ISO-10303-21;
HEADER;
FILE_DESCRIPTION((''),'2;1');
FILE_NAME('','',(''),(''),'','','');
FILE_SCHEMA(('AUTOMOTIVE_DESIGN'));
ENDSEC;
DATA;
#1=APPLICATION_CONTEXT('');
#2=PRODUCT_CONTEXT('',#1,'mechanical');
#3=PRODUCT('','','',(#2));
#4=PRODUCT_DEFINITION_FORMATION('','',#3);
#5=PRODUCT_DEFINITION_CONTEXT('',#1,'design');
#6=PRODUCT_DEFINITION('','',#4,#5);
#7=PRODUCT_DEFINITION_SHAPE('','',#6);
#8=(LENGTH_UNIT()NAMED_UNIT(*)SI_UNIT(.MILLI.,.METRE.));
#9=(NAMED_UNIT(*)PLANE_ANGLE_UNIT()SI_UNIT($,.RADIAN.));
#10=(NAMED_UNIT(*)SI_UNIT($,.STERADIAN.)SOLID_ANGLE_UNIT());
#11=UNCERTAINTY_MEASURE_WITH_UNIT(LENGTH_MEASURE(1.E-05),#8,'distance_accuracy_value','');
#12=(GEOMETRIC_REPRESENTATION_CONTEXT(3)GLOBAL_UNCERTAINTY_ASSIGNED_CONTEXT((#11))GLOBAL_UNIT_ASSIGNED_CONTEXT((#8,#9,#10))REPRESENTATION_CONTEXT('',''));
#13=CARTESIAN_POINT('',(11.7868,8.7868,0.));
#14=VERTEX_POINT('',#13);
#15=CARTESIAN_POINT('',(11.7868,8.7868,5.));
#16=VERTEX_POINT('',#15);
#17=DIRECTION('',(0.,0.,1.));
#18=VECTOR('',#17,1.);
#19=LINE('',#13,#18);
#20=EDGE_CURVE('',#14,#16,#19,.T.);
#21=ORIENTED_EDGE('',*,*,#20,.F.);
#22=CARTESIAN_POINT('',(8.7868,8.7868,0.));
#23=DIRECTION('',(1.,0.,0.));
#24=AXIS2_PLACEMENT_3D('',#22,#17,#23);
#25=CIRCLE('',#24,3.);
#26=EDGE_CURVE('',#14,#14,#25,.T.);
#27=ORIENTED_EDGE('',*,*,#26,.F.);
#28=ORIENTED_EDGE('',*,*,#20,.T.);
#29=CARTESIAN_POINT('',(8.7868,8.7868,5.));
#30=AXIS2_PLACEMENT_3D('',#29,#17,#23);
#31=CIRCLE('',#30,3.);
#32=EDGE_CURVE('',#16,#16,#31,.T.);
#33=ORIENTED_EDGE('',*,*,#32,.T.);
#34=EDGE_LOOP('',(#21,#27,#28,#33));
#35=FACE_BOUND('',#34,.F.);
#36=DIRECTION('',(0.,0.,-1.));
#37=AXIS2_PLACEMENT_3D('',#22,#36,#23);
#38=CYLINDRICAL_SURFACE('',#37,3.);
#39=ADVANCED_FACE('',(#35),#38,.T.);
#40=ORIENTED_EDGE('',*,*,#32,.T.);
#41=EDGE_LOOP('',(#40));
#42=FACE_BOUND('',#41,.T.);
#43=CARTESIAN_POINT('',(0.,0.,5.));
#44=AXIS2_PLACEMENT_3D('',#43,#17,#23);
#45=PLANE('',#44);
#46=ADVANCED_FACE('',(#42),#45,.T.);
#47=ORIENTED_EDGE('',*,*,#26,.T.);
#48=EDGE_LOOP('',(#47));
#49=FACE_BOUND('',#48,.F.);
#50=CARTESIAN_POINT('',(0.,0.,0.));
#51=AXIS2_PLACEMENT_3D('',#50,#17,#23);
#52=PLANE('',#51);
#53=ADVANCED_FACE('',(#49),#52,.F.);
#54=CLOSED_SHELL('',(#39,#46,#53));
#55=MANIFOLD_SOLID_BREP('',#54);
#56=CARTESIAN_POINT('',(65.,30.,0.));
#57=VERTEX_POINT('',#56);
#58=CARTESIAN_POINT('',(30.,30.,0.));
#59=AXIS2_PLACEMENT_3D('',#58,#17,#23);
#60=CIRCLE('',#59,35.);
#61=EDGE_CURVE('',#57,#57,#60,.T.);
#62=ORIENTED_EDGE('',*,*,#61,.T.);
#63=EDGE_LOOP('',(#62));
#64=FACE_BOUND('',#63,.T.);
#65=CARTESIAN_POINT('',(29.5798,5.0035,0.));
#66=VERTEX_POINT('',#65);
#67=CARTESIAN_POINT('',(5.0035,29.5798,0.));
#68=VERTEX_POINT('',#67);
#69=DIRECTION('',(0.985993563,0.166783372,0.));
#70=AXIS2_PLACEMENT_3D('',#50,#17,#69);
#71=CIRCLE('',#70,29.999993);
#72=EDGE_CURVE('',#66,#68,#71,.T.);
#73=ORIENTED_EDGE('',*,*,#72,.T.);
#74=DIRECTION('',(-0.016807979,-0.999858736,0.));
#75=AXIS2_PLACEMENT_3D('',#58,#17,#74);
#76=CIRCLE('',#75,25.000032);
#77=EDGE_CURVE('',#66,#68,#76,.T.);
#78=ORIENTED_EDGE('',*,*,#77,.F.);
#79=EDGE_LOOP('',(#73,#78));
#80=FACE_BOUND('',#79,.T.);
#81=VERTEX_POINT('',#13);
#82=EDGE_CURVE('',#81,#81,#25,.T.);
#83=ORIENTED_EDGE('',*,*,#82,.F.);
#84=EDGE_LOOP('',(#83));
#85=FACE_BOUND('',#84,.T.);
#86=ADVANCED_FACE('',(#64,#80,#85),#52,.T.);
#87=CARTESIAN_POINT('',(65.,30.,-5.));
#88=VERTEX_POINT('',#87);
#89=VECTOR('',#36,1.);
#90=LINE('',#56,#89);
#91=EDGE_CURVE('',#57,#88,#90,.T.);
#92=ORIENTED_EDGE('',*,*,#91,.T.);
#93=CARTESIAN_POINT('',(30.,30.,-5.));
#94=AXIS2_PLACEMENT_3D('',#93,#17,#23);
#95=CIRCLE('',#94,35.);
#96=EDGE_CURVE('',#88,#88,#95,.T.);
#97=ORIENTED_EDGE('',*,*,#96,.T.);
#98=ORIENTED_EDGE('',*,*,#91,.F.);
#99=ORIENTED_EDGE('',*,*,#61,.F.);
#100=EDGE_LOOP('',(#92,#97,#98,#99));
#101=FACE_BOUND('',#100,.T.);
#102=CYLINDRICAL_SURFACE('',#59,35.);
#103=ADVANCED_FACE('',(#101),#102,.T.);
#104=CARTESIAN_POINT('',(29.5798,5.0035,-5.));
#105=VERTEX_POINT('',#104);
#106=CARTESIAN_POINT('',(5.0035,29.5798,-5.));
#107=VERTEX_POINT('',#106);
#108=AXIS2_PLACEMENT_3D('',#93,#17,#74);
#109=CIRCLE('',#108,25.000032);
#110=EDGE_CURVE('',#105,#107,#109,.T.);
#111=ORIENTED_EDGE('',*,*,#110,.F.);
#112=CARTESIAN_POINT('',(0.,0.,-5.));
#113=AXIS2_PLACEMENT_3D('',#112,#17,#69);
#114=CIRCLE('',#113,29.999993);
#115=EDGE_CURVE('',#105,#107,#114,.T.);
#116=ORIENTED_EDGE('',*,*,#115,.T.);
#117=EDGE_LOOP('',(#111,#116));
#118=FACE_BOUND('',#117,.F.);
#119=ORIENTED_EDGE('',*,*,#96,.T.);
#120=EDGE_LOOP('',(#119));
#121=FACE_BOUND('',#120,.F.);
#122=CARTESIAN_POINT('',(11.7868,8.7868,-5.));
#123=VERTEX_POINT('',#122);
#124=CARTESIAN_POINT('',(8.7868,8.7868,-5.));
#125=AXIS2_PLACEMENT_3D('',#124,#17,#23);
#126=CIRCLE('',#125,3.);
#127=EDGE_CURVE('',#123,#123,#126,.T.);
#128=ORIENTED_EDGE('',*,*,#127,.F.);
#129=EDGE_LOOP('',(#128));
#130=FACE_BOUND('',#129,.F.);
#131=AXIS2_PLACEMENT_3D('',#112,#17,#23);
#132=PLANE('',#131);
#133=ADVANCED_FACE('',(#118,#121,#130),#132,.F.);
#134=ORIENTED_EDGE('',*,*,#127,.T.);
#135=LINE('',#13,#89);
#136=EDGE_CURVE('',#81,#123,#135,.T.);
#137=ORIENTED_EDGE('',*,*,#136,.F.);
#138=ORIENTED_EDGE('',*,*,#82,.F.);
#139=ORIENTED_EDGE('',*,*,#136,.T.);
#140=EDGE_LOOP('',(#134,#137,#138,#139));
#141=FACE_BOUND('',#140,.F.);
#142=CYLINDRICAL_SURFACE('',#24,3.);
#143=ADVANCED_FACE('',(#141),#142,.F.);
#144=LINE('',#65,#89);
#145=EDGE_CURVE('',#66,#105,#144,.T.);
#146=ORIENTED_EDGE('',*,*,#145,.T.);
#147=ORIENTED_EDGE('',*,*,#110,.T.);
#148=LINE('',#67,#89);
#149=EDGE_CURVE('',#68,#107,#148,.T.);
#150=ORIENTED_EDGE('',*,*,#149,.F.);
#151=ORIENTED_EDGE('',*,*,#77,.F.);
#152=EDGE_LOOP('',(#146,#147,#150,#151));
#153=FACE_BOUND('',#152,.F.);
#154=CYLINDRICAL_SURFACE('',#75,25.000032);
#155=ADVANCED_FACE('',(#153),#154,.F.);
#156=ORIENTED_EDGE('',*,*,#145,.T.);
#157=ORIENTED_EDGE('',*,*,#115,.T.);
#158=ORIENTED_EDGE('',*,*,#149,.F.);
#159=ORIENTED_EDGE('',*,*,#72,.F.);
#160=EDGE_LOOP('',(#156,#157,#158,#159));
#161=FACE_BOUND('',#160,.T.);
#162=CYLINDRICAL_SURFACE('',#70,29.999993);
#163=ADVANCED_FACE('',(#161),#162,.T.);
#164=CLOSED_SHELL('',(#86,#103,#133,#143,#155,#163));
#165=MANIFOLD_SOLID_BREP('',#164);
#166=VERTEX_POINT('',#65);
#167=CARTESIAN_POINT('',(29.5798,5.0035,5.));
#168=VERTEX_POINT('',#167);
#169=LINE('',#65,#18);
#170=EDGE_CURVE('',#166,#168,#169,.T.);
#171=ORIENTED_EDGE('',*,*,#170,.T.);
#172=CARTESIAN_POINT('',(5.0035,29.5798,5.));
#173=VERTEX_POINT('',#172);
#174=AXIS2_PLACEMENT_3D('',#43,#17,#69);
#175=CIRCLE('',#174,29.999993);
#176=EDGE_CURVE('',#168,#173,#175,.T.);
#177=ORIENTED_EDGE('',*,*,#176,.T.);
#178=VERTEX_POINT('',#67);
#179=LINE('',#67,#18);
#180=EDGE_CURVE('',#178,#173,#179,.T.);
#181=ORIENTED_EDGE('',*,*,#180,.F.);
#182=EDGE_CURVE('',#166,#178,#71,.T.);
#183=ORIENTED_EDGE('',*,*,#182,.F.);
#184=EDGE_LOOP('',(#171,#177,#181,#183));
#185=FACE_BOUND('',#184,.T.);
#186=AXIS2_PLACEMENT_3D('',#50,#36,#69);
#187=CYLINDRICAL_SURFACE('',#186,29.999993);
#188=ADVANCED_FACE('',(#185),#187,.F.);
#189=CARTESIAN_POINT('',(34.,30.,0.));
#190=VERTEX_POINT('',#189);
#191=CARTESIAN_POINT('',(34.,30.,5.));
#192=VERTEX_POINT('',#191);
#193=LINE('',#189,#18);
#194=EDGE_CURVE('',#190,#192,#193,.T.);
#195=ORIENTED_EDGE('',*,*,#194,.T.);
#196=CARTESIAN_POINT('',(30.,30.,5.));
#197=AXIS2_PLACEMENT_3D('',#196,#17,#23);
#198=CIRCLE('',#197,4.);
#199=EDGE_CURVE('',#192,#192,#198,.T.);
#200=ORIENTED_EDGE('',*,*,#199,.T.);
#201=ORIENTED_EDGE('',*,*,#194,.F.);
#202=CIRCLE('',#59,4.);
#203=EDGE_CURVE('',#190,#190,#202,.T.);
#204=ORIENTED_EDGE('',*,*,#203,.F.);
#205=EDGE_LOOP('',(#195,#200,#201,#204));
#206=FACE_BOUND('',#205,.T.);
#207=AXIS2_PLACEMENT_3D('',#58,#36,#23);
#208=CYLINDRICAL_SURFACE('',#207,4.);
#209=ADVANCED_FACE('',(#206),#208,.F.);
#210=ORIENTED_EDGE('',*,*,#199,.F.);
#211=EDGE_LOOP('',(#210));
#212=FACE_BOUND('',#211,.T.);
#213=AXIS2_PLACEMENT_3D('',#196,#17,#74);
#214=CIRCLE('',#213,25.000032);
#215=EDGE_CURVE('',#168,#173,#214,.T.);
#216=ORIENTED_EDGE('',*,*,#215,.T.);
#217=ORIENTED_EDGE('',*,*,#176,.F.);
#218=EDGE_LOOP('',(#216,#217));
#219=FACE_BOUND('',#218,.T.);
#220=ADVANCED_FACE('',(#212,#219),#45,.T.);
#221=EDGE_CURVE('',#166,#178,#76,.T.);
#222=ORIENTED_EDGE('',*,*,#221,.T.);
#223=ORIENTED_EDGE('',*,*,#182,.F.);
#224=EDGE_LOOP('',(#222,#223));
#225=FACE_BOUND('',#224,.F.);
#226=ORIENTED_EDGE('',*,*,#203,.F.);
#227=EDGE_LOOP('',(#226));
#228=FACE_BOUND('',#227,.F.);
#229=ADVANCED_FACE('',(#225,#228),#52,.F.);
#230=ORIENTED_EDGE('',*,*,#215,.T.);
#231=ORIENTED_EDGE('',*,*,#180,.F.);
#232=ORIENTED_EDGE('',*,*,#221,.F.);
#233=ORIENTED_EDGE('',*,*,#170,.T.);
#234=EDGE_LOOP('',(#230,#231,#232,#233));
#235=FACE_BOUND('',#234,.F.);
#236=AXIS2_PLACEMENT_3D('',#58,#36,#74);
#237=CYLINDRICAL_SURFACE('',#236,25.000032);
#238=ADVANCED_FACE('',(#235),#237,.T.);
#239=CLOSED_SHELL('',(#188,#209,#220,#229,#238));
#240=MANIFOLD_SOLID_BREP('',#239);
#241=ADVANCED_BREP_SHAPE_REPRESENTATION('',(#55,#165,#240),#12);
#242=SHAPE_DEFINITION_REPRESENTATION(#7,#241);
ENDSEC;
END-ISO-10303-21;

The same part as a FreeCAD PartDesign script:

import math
import FreeCAD as App
import Part
import Sketcher
from FreeCAD import Vector

doc = App.newDocument("Part")
body = doc.addObject("PartDesign::Body", "Body")
body.AllowCompound = True

# Sketch on XY plane
sketch1 = body.newObject("Sketcher::SketchObject", "Sketch")
sketch1.AttachmentSupport = (doc.getObject("XY_Plane"), [""])
sketch1.MapMode = "FlatFace"
sketch1.addGeometry(Part.ArcOfCircle(Part.Circle(Vector(0, 0, 0), Vector(0, 0, 1), 29.999993), math.radians(9.60085), math.radians(80.39915)), False)
sketch1.addGeometry(Part.ArcOfCircle(Part.Circle(Vector(30, 30, 0), Vector(0, 0, 1), 25.000032), math.radians(-90.963072), math.radians(180.963072)), False)
sketch1.addGeometry(Part.Circle(Vector(30, 30, 0), Vector(0, 0, 1), 4), False)
sketch1.addGeometry(Part.Circle(Vector(8.7868, 8.7868, 0), Vector(0, 0, 1), 3), False)
sketch1.addConstraint(Sketcher.Constraint("Coincident", 0, 1, 1, 1))
sketch1.addConstraint(Sketcher.Constraint("Coincident", 1, 2, 0, 2))
sketch1.addConstraint(Sketcher.Constraint("Coincident", 0, 3, -1, 1))
sketch1.addConstraint(Sketcher.Constraint("Coincident", 2, 3, 1, 3))
sketch1.addConstraint(Sketcher.Constraint("Diameter", 2, 8.0))
sketch1.addConstraint(Sketcher.Constraint("Diameter", 3, 6.0))
sketch1.addConstraint(Sketcher.Constraint("Radius", 0, 30.0))
sketch1.addConstraint(Sketcher.Constraint("Radius", 1, 25.0))
sketch1.addConstraint(Sketcher.Constraint("DistanceX", -1, 1, 1, 3, 30.0))
sketch1.addConstraint(Sketcher.Constraint("DistanceY", -1, 1, 1, 3, 30.0))
sketch1.addConstraint(Sketcher.Constraint("DistanceX", 3, 3, 0, 1, 20.793))
sketch1.addConstraint(Sketcher.Constraint("DistanceY", 3, 3, 1, 2, 20.793))
pad1 = body.newObject("PartDesign::Pad", "Pad")
pad1.Profile = sketch1
pad1.Length = 5

# Sketch on XY plane
sketch2 = body.newObject("Sketcher::SketchObject", "Sketch001")
sketch2.AttachmentSupport = (doc.getObject("XY_Plane"), [""])
sketch2.MapMode = "FlatFace"
sketch2.addGeometry(Part.Circle(Vector(30, 30, 0), Vector(0, 0, 1), 35), False)
sketch2.addGeometry(Part.Circle(Vector(8.7868, 8.7868, 0), Vector(0, 0, 1), 3), False)
sketch2.addGeometry(Part.ArcOfCircle(Part.Circle(Vector(30, 30, 0), Vector(0, 0, 1), 25.000032), math.radians(-90.963072), math.radians(180.963072)), False)
sketch2.addGeometry(Part.ArcOfCircle(Part.Circle(Vector(0, 0, 0), Vector(0, 0, 1), 29.999993), math.radians(9.60085), math.radians(80.39915)), False)
sketch2.addConstraint(Sketcher.Constraint("Coincident", 2, 1, 3, 1))
sketch2.addConstraint(Sketcher.Constraint("Coincident", 3, 2, 2, 2))
sketch2.addConstraint(Sketcher.Constraint("Coincident", 3, 3, -1, 1))
sketch2.addConstraint(Sketcher.Constraint("Coincident", 2, 3, 0, 3))
sketch2.addConstraint(Sketcher.Constraint("Diameter", 0, 70.0))
sketch2.addConstraint(Sketcher.Constraint("Diameter", 1, 6.0))
sketch2.addConstraint(Sketcher.Constraint("Radius", 2, 25.0))
sketch2.addConstraint(Sketcher.Constraint("Radius", 3, 30.0))
sketch2.addConstraint(Sketcher.Constraint("DistanceX", -1, 1, 0, 3, 30.0))
sketch2.addConstraint(Sketcher.Constraint("DistanceY", -1, 1, 0, 3, 30.0))
sketch2.addConstraint(Sketcher.Constraint("DistanceX", 1, 3, 2, 1, 20.793))
sketch2.addConstraint(Sketcher.Constraint("DistanceY", 1, 3, 3, 2, 20.793))
pad2 = body.newObject("PartDesign::Pad", "Pad001")
pad2.Profile = sketch2
pad2.Length = 5
pad2.Reversed = True

doc.recompute()
